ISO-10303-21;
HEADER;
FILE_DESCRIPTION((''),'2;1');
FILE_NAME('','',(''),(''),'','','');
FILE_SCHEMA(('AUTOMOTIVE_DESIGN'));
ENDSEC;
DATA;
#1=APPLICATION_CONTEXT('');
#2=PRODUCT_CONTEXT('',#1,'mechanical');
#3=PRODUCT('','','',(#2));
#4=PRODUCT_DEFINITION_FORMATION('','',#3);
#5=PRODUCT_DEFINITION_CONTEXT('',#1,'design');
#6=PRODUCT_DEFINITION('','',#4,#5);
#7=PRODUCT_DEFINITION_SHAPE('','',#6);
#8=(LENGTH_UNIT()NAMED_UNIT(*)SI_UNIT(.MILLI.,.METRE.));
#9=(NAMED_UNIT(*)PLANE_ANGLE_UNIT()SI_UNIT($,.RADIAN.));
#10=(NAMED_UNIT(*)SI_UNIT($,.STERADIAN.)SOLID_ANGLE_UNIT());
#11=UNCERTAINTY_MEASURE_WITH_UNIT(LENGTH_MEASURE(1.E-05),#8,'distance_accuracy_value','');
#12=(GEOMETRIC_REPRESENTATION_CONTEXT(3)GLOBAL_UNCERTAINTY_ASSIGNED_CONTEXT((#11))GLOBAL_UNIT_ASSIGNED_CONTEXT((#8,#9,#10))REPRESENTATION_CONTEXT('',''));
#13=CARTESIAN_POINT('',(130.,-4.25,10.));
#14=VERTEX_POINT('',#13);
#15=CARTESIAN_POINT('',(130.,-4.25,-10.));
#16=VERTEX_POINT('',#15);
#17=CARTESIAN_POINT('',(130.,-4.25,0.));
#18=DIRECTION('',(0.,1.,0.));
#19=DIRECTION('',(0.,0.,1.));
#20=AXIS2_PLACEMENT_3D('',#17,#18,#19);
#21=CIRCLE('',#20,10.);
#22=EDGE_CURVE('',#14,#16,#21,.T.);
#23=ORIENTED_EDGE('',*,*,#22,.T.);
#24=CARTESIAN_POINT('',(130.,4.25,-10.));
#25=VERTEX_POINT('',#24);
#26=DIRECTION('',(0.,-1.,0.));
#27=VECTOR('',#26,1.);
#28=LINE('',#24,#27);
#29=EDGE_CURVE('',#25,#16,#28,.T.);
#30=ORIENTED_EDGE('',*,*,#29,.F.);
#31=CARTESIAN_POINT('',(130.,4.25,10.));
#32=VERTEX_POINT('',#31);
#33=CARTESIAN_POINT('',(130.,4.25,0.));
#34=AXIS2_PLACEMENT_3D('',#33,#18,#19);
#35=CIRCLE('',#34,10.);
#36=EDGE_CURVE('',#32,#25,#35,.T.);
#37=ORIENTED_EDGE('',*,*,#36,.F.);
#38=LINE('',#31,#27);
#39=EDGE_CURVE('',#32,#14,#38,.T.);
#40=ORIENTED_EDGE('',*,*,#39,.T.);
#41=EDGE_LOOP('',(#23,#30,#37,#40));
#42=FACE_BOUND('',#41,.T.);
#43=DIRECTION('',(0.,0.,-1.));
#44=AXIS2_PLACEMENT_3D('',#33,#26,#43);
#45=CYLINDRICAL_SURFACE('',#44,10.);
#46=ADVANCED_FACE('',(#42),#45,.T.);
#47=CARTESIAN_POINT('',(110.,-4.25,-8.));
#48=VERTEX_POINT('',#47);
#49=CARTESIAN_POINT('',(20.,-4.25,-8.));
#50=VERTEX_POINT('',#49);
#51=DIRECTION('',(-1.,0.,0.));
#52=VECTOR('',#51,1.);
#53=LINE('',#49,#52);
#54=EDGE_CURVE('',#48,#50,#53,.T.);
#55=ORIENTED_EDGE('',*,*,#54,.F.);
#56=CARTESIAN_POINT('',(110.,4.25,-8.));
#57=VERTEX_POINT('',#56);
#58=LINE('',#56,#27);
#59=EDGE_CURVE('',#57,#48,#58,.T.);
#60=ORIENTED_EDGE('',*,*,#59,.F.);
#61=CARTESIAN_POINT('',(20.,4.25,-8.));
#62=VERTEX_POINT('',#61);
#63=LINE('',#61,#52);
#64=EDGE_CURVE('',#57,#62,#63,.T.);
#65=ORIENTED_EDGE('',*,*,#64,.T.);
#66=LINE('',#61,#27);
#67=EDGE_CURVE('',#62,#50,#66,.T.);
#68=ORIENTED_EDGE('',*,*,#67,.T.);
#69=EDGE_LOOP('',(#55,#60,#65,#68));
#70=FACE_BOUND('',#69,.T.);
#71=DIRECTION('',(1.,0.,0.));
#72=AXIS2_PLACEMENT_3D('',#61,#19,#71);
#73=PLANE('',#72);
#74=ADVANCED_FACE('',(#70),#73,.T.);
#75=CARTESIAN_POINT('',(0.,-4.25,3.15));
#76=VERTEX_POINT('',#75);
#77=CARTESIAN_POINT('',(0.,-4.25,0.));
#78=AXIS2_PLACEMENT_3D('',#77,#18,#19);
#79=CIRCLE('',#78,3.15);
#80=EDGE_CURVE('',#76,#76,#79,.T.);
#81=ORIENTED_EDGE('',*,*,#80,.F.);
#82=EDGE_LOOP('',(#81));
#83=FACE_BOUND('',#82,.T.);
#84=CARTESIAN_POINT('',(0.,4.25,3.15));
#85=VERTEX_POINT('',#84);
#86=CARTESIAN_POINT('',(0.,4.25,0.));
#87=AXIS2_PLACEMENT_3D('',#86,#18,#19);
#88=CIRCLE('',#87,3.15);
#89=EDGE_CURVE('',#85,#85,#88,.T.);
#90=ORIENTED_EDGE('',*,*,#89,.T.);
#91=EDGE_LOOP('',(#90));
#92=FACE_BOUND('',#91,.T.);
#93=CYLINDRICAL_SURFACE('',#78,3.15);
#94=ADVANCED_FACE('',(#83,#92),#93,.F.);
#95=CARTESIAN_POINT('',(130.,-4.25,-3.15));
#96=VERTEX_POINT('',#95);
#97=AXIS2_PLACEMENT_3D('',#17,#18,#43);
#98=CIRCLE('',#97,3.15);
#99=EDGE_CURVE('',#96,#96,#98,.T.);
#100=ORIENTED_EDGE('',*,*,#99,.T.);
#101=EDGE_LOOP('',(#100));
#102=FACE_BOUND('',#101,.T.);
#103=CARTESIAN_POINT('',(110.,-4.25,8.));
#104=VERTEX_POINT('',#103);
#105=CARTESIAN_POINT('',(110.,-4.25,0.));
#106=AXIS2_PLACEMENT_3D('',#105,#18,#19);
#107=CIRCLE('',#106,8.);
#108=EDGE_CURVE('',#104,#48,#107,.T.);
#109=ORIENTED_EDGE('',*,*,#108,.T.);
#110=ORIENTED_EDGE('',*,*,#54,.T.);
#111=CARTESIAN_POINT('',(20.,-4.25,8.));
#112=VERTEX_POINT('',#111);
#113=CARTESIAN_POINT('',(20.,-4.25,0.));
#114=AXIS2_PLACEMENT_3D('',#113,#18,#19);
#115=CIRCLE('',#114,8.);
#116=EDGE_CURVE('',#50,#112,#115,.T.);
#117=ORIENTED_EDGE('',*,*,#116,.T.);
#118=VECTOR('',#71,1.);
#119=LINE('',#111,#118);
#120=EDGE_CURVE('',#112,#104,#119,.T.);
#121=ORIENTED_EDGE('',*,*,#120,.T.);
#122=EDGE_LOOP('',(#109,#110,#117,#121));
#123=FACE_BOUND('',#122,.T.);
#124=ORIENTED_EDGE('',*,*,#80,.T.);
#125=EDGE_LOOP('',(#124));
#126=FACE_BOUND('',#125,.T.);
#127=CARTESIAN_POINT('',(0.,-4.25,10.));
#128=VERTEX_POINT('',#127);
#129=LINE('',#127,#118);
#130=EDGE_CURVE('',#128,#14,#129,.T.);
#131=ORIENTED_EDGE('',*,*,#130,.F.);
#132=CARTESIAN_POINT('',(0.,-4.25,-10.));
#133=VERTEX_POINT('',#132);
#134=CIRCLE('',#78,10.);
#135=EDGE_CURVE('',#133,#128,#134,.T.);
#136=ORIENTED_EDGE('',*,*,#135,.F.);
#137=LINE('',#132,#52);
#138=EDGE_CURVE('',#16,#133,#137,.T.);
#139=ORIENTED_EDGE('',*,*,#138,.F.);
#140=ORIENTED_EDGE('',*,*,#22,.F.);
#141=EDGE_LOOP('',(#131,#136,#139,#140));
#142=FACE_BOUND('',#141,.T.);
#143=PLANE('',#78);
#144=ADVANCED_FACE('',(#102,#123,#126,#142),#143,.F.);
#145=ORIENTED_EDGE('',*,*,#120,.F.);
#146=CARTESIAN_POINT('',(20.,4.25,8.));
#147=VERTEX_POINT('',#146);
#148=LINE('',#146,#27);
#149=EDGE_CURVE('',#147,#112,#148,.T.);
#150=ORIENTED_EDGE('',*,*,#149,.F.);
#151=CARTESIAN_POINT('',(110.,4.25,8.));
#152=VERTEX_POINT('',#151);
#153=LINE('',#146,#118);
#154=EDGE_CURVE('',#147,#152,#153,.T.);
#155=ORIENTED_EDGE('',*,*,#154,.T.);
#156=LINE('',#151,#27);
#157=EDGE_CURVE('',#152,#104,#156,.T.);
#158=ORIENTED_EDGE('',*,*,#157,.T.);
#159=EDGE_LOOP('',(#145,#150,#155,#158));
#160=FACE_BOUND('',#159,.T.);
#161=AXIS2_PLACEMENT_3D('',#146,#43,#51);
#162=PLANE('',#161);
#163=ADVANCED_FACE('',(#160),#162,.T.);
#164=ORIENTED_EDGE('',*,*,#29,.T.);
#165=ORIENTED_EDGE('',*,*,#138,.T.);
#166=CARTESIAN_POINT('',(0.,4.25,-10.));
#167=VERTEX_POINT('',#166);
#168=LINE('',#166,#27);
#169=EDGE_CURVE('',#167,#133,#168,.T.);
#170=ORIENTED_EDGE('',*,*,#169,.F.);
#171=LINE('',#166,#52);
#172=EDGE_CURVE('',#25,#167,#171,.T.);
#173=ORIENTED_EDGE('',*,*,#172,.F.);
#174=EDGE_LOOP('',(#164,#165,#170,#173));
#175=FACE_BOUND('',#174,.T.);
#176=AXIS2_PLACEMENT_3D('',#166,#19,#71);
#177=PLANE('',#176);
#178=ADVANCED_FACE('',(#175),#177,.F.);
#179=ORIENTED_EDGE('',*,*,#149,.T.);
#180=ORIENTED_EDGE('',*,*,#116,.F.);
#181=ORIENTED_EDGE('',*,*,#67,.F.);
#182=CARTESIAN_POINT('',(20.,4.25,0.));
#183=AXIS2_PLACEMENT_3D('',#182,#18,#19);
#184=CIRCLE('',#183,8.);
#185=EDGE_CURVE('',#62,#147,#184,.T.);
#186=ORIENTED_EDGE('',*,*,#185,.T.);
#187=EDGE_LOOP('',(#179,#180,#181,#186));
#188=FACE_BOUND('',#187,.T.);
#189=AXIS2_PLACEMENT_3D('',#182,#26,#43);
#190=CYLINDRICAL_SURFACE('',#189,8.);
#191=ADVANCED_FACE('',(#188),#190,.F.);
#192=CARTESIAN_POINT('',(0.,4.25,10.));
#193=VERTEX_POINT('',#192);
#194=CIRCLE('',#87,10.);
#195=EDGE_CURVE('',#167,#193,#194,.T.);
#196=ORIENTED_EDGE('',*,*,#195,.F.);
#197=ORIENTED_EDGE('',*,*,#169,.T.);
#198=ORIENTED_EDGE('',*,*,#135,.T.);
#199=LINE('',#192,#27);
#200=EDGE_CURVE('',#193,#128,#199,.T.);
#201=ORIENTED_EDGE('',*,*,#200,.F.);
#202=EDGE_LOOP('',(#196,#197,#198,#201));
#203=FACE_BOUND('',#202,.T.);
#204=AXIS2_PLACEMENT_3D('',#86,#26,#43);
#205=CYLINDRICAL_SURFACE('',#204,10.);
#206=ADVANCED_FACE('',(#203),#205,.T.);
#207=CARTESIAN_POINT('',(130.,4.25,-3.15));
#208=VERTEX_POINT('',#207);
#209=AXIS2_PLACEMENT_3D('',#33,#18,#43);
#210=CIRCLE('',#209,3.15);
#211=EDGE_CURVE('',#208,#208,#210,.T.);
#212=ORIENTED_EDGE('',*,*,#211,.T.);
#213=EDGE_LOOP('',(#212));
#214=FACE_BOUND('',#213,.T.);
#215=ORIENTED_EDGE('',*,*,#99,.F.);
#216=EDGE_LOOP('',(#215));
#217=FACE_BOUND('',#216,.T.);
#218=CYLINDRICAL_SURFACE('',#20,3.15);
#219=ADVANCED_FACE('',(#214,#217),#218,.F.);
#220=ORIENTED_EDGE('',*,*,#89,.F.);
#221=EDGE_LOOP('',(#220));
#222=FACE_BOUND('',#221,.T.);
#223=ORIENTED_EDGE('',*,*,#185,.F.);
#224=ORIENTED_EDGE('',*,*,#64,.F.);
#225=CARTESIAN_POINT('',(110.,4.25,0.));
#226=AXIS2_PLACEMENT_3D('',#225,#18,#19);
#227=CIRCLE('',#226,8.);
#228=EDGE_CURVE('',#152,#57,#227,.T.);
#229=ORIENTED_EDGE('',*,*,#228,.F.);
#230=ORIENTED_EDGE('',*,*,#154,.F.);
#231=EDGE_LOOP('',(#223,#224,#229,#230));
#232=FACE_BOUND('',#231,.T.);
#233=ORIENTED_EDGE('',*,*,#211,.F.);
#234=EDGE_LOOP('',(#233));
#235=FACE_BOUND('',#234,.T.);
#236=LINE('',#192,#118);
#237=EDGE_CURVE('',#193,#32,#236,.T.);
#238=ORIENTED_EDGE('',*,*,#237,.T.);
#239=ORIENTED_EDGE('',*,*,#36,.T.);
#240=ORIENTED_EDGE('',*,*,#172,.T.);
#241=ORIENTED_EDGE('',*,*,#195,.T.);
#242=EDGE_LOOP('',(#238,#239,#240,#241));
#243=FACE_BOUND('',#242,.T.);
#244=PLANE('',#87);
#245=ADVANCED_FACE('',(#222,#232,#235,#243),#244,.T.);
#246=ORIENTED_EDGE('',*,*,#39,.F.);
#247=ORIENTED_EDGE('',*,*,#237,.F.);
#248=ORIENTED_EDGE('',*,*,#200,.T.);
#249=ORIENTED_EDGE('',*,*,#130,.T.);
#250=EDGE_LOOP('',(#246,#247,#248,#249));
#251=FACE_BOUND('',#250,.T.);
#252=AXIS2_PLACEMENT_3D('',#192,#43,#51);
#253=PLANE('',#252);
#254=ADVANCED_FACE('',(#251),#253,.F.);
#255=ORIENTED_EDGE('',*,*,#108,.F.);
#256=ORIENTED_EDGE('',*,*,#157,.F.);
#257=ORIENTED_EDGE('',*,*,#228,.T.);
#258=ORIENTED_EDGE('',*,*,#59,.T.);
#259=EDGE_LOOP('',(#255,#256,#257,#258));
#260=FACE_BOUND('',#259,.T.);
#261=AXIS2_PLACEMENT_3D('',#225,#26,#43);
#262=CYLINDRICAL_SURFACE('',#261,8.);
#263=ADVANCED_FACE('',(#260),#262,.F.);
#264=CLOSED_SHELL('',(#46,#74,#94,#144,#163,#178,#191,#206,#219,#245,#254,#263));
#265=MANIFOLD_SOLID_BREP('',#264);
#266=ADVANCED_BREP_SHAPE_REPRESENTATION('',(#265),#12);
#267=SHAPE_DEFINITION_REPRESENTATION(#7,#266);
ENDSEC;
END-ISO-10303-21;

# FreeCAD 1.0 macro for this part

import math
import FreeCAD as App
import Part
import Sketcher
from FreeCAD import Vector
Q = App.Units.Quantity

doc = App.newDocument("Part")
body = doc.addObject("PartDesign::Body", "Body")

# Sketch on XZ plane
sketch1 = body.newObject("Sketcher::SketchObject", "Sketch")
sketch1.AttachmentSupport = (doc.getObject("XZ_Plane"), [""])
sketch1.MapMode = "FlatFace"
sketch1.addGeometry([
    Part.LineSegment(Vector(130, -10, 0), Vector(0, -10, 0)),  # 0
    Part.ArcOfCircle(Part.Circle(Vector(0, 0, 0), Vector(0, 0, 1), 10), math.radians(90), math.radians(270)),  # 1
    Part.LineSegment(Vector(0, 10, 0), Vector(130, 10, 0)),  # 2
    Part.ArcOfCircle(Part.Circle(Vector(130, 0, 0), Vector(0, 0, 1), 10), math.radians(-90), math.radians(90)),  # 3
    Part.LineSegment(Vector(20, -8, 0), Vector(110, -8, 0)),  # 4
    Part.ArcOfCircle(Part.Circle(Vector(110, 0, 0), Vector(0, 0, 1), 8), math.radians(-90), math.radians(90)),  # 5
    Part.LineSegment(Vector(110, 8, 0), Vector(20, 8, 0)),  # 6
    Part.ArcOfCircle(Part.Circle(Vector(20, 0, 0), Vector(0, 0, 1), 8), math.radians(90), math.radians(270)),  # 7
], False)
sketch1.addConstraint([
    Sketcher.Constraint("Tangent", 0, 2, 1, 2),
    Sketcher.Constraint("Tangent", 1, 1, 2, 1),
    Sketcher.Constraint("Tangent", 2, 2, 3, 2),
    Sketcher.Constraint("Tangent", 3, 1, 0, 1),
    Sketcher.Constraint("Tangent", 4, 2, 5, 1),
    Sketcher.Constraint("Tangent", 5, 2, 6, 1),
    Sketcher.Constraint("Tangent", 6, 2, 7, 1),
    Sketcher.Constraint("Tangent", 7, 2, 4, 1),
    Sketcher.Constraint("Horizontal", 0),
    Sketcher.Constraint("Horizontal", 2),
    Sketcher.Constraint("Horizontal", 4),
    Sketcher.Constraint("Horizontal", 6),
    Sketcher.Constraint("Coincident", 1, 3, -1, 1),
    Sketcher.Constraint("PointOnObject", 5, 3, -1),
    Sketcher.Constraint("Radius", 1, Q("10 mm")),
    Sketcher.Constraint("Radius", 5, Q("8 mm")),
    Sketcher.Constraint("DistanceX", 0, 2, 0, 1, Q("130 mm")),
    Sketcher.Constraint("DistanceX", 4, 1, 4, 2, Q("90 mm")),
    Sketcher.Constraint("DistanceX", -1, 1, 5, 3, Q("110 mm")),
])
pad1 = body.newObject("PartDesign::Pad", "Pad")
pad1.Profile = sketch1
pad1.Length = 8.5
pad1.Midplane = True

# Sketch on XZ plane
sketch2 = body.newObject("Sketcher::SketchObject", "Sketch001")
sketch2.AttachmentSupport = (doc.getObject("XZ_Plane"), [""])
sketch2.MapMode = "FlatFace"
sketch2.AttachmentOffset = App.Placement(Vector(0, 0, -4.25), App.Rotation())
sketch2.addGeometry([
    Part.Circle(Vector(0, 0, 0), Vector(0, 0, 1), 3.15),
    Part.Circle(Vector(130, 0, 0), Vector(0, 0, 1), 3.15),
], False)
sketch2.addConstraint([
    Sketcher.Constraint("Coincident", 0, 3, -1, 1),
    Sketcher.Constraint("Equal", 0, 1),
    Sketcher.Constraint("PointOnObject", 1, 3, -1),
    Sketcher.Constraint("Diameter", 0, Q("6.3 mm")),
    Sketcher.Constraint("DistanceX", -1, 1, 1, 3, Q("130 mm")),
])
pocket1 = body.newObject("PartDesign::Pocket", "Pocket")
pocket1.Profile = sketch2
pocket1.Type = "ThroughAll"
pocket1.Reversed = True

doc.recompute()
